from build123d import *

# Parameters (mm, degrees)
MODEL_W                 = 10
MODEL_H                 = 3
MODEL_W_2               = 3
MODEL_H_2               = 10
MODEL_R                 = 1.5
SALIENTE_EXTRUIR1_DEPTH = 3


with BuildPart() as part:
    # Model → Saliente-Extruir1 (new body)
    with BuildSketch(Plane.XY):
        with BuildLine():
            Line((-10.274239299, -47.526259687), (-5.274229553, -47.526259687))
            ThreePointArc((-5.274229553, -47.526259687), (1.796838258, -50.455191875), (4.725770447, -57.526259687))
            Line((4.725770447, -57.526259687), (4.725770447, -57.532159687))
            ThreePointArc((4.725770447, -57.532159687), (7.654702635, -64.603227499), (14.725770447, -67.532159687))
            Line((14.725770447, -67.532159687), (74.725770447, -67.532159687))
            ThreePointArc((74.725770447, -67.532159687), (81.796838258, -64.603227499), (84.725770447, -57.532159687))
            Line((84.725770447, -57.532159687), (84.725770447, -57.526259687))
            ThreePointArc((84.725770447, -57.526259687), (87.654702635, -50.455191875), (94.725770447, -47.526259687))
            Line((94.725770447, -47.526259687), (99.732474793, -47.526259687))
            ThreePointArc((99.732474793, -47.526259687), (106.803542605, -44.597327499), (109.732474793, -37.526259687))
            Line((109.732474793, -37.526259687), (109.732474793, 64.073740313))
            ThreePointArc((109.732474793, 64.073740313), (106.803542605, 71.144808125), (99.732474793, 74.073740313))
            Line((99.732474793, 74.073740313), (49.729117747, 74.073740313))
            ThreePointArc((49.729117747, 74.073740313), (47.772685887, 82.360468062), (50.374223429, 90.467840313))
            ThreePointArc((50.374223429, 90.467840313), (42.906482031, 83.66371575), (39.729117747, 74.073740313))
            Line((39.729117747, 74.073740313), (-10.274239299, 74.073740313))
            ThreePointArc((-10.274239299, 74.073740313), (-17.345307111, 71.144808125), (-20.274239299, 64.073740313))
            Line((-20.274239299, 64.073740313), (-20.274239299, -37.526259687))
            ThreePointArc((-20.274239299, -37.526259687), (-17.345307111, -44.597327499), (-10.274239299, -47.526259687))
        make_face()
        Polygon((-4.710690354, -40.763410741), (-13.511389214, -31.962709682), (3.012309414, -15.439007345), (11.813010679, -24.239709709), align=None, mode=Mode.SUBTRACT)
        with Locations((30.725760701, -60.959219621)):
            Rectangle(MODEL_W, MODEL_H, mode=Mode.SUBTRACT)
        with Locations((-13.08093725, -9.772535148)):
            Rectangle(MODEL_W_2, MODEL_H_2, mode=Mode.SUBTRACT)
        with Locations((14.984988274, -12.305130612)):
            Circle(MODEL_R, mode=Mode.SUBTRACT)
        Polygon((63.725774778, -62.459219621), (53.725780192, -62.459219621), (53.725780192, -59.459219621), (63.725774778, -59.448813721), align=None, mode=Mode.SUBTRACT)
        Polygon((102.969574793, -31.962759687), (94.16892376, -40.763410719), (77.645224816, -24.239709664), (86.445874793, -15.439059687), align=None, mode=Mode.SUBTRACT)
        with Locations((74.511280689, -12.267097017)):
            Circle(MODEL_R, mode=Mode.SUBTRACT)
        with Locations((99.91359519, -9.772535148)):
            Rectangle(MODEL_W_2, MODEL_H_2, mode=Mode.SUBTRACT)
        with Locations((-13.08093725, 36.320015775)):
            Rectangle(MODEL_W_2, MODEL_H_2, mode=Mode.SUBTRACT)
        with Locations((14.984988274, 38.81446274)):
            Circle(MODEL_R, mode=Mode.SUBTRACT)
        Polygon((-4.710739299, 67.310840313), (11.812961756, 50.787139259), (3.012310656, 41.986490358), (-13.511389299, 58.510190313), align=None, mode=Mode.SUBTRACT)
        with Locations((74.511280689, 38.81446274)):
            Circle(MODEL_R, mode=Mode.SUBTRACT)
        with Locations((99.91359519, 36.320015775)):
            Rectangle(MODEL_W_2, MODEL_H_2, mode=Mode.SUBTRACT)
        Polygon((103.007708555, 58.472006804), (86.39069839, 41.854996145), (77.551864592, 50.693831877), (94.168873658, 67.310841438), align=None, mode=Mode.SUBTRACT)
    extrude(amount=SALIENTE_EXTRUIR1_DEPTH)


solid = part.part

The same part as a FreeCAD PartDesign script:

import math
import FreeCAD as App
import Part
import Sketcher

V = App.Vector


def add_polygon(sketch, points):
    """Adds a closed chain of lines whose ends are joined by coincident constraints."""
    first, n = sketch.GeometryCount, len(points)
    for a, b in zip(points, points[1:] + points[:1]):
        sketch.addGeometry(Part.LineSegment(App.Vector(*a, 0), App.Vector(*b, 0)), False)
    for i in range(n):
        sketch.addConstraint(Sketcher.Constraint("Coincident", first + i, 2, first + (i + 1) % n, 1))

doc = App.newDocument("Part")
body = doc.addObject("PartDesign::Body", "Body")

# Sketch on XY plane
sketch1 = body.newObject("Sketcher::SketchObject", "Sketch")
sketch1.AttachmentSupport = (doc.getObject("XY_Plane"), [""])
sketch1.MapMode = "FlatFace"
sketch1.addGeometry(Part.LineSegment(V(-10.274, -47.526, 0), V(-5.274, -47.526, 0)), False)  # 0
sketch1.addGeometry(Part.ArcOfCircle(Part.Circle(V(-5.274, -57.526, 0), V(0, 0, 1), 10), math.radians(0), math.radians(90)), False)  # 1
sketch1.addGeometry(Part.LineSegment(V(4.726, -57.526, 0), V(4.726, -57.532, 0)), False)  # 2
sketch1.addGeometry(Part.ArcOfCircle(Part.Circle(V(14.726, -57.532, 0), V(0, 0, 1), 10), math.radians(180), math.radians(270)), False)  # 3
sketch1.addGeometry(Part.LineSegment(V(14.726, -67.532, 0), V(74.726, -67.532, 0)), False)  # 4
sketch1.addGeometry(Part.ArcOfCircle(Part.Circle(V(74.726, -57.532, 0), V(0, 0, 1), 10), math.radians(-90), math.radians(0)), False)  # 5
sketch1.addGeometry(Part.LineSegment(V(84.726, -57.532, 0), V(84.726, -57.526, 0)), False)  # 6
sketch1.addGeometry(Part.ArcOfCircle(Part.Circle(V(94.726, -57.526, 0), V(0, 0, 1), 10), math.radians(90), math.radians(180)), False)  # 7
sketch1.addGeometry(Part.LineSegment(V(94.726, -47.526, 0), V(99.732, -47.526, 0)), False)  # 8
sketch1.addGeometry(Part.ArcOfCircle(Part.Circle(V(99.732, -37.526, 0), V(0, 0, 1), 10), math.radians(-90), math.radians(0)), False)  # 9
sketch1.addGeometry(Part.LineSegment(V(109.732, -37.526, 0), V(109.732, 64.074, 0)), False)  # 10
sketch1.addGeometry(Part.ArcOfCircle(Part.Circle(V(99.732, 64.074, 0), V(0, 0, 1), 10), math.radians(0), math.radians(90)), False)  # 11
sketch1.addGeometry(Part.LineSegment(V(99.732, 74.074, 0), V(49.729, 74.074, 0)), False)  # 12
sketch1.addGeometry(Part.ArcOfCircle(Part.Circle(V(63.654, 81.736, 0), V(0, 0, 1), 15.893), math.radians(147), math.radians(209)), False)  # 13
sketch1.addGeometry(Part.ArcOfCircle(Part.Circle(V(59.64, 72.798, 0), V(0, 0, 1), 19.952), math.radians(118), math.radians(176)), False)  # 14
sketch1.addGeometry(Part.LineSegment(V(39.729, 74.074, 0), V(-10.274, 74.074, 0)), False)  # 15
sketch1.addGeometry(Part.ArcOfCircle(Part.Circle(V(-10.274, 64.074, 0), V(0, 0, 1), 10), math.radians(90), math.radians(180)), False)  # 16
sketch1.addGeometry(Part.LineSegment(V(-20.274, 64.074, 0), V(-20.274, -37.526, 0)), False)  # 17
sketch1.addGeometry(Part.ArcOfCircle(Part.Circle(V(-10.274, -37.526, 0), V(0, 0, 1), 10), math.radians(180), math.radians(270)), False)  # 18
add_polygon(sketch1, [(35.726, -62.459), (25.726, -62.459), (25.726, -59.459), (35.726, -59.459)])  # lines 19-22
add_polygon(sketch1, [(11.813, -24.24), (-4.711, -40.763), (-13.511, -31.963), (3.012, -15.439)])  # lines 23-26
add_polygon(sketch1, [(-11.581, -14.773), (-14.581, -14.773), (-14.581, -4.773), (-11.581, -4.773)])  # lines 27-30
sketch1.addGeometry(Part.Circle(V(14.985, -12.305, 0), V(0, 0, 1), 1.5), False)  # 31
add_polygon(sketch1, [(63.726, -59.449), (63.726, -62.459), (53.726, -62.459), (53.726, -59.459)])  # lines 32-35
add_polygon(sketch1, [(86.446, -15.439), (102.97, -31.963), (94.169, -40.763), (77.645, -24.24)])  # lines 36-39
sketch1.addGeometry(Part.Circle(V(74.511, -12.267, 0), V(0, 0, 1), 1.5), False)  # 40
add_polygon(sketch1, [(101.414, -14.773), (98.414, -14.773), (98.414, -4.773), (101.414, -4.773)])  # lines 41-44
add_polygon(sketch1, [(-11.581, 31.32), (-14.581, 31.32), (-14.581, 41.32), (-11.581, 41.32)])  # lines 45-48
add_polygon(sketch1, [(-13.511, 58.51), (-4.711, 67.311), (11.813, 50.787), (3.012, 41.986)])  # lines 49-52
sketch1.addGeometry(Part.Circle(V(14.985, 38.814, 0), V(0, 0, 1), 1.5), False)  # 53
sketch1.addGeometry(Part.Circle(V(74.511, 38.814, 0), V(0, 0, 1), 1.5), False)  # 54
add_polygon(sketch1, [(101.414, 31.32), (98.414, 31.32), (98.414, 41.32), (101.414, 41.32)])  # lines 55-58
add_polygon(sketch1, [(94.169, 67.311), (103.008, 58.472), (86.391, 41.855), (77.552, 50.694)])  # lines 59-62
sketch1.addConstraint([
    Sketcher.Constraint("Tangent", 0, 2, 1, 2),
    Sketcher.Constraint("Tangent", 1, 1, 2, 1),
    Sketcher.Constraint("Coincident", 2, 2, 3, 1),
    Sketcher.Constraint("Tangent", 3, 2, 4, 1),
    Sketcher.Constraint("Tangent", 4, 2, 5, 1),
    Sketcher.Constraint("Tangent", 5, 2, 6, 1),
    Sketcher.Constraint("Coincident", 6, 2, 7, 2),
    Sketcher.Constraint("Tangent", 7, 1, 8, 1),
    Sketcher.Constraint("Tangent", 8, 2, 9, 1),
    Sketcher.Constraint("Tangent", 9, 2, 10, 1),
    Sketcher.Constraint("Tangent", 10, 2, 11, 1),
    Sketcher.Constraint("Tangent", 11, 2, 12, 1),
    Sketcher.Constraint("Coincident", 12, 2, 13, 2),
    Sketcher.Constraint("Coincident", 13, 1, 14, 1),
    Sketcher.Constraint("Coincident", 14, 2, 15, 1),
    Sketcher.Constraint("Tangent", 15, 2, 16, 1),
    Sketcher.Constraint("Tangent", 16, 2, 17, 1),
    Sketcher.Constraint("Tangent", 17, 2, 18, 1),
    Sketcher.Constraint("Tangent", 18, 2, 0, 1),
    Sketcher.Constraint("Horizontal", 0),
    Sketcher.Constraint("Horizontal", 4),
    Sketcher.Constraint("Horizontal", 8),
    Sketcher.Constraint("Vertical", 10),
    Sketcher.Constraint("Horizontal", 12),
    Sketcher.Constraint("Horizontal", 15),
    Sketcher.Constraint("Vertical", 17),
    Sketcher.Constraint("Horizontal", 19),
    Sketcher.Constraint("Vertical", 20),
    Sketcher.Constraint("Horizontal", 21),
    Sketcher.Constraint("Vertical", 22),
    Sketcher.Constraint("Horizontal", 27),
    Sketcher.Constraint("Vertical", 28),
    Sketcher.Constraint("Horizontal", 29),
    Sketcher.Constraint("Vertical", 30),
    Sketcher.Constraint("Vertical", 32),
    Sketcher.Constraint("Horizontal", 33),
    Sketcher.Constraint("Vertical", 34),
    Sketcher.Constraint("Horizontal", 41),
    Sketcher.Constraint("Vertical", 42),
    Sketcher.Constraint("Horizontal", 43),
    Sketcher.Constraint("Vertical", 44),
    Sketcher.Constraint("Horizontal", 45),
    Sketcher.Constraint("Vertical", 46),
    Sketcher.Constraint("Horizontal", 47),
    Sketcher.Constraint("Vertical", 48),
    Sketcher.Constraint("Horizontal", 55),
    Sketcher.Constraint("Vertical", 56),
    Sketcher.Constraint("Horizontal", 57),
    Sketcher.Constraint("Vertical", 58),
    Sketcher.Constraint("Equal", 1, 3),
    Sketcher.Constraint("Equal", 3, 5),
    Sketcher.Constraint("Equal", 5, 7),
    Sketcher.Constraint("Equal", 7, 9),
    Sketcher.Constraint("Equal", 9, 11),
    Sketcher.Constraint("Equal", 11, 16),
    Sketcher.Constraint("Equal", 16, 18),
    Sketcher.Constraint("Equal", 31, 40),
    Sketcher.Constraint("Equal", 40, 53),
    Sketcher.Constraint("Equal", 53, 54),
    Sketcher.Constraint("Perpendicular", 23, 24),
    Sketcher.Constraint("Perpendicular", 24, 25),
    Sketcher.Constraint("Perpendicular", 25, 26),
    Sketcher.Constraint("Parallel", 26, 36),
    Sketcher.Constraint("Perpendicular", 36, 37),
    Sketcher.Constraint("Perpendicular", 37, 38),
    Sketcher.Constraint("Perpendicular", 38, 39),
    Sketcher.Constraint("Parallel", 39, 49),
    Sketcher.Constraint("Perpendicular", 49, 50),
    Sketcher.Constraint("Perpendicular", 50, 51),
    Sketcher.Constraint("Perpendicular", 51, 52),
    Sketcher.Constraint("Parallel", 52, 59),
    Sketcher.Constraint("Perpendicular", 59, 60),
    Sketcher.Constraint("Perpendicular", 60, 61),
    Sketcher.Constraint("Perpendicular", 61, 62),
    Sketcher.Constraint("Horizontal", 1, 3, 7, 3),
    Sketcher.Constraint("Horizontal", 11, 3, 16, 3),
    Sketcher.Constraint("Horizontal", 53, 3, 54, 3),
    Sketcher.Constraint("Horizontal", 7, 3, 1, 1),
    Sketcher.Constraint("Horizontal", 5, 3, 2, 2),
    Sketcher.Constraint("Horizontal", 2, 2, 5, 2),
    Sketcher.Constraint("Horizontal", 1, 1, 6, 2),
    Sketcher.Constraint("Horizontal", 22, 2, 32, 2),
    Sketcher.Constraint("Horizontal", 21, 2, 34, 2),
    Sketcher.Constraint("Horizontal", 23, 2, 37, 2),
    Sketcher.Constraint("Horizontal", 26, 2, 38, 2),
    Sketcher.Constraint("Horizontal", 30, 2, 41, 2),
    Sketcher.Constraint("Horizontal", 29, 2, 42, 2),
    Sketcher.Constraint("Horizontal", 48, 2, 55, 2),
    Sketcher.Constraint("Horizontal", 47, 2, 56, 2),
    Sketcher.Constraint("Horizontal", 49, 2, 62, 2),
    Sketcher.Constraint("Vertical", 31, 3, 53, 3),
    Sketcher.Constraint("Vertical", 40, 3, 54, 3),
    Sketcher.Constraint("Vertical", 28, 2, 45, 2),
    Sketcher.Constraint("Vertical", 30, 2, 47, 2),
    Sketcher.Constraint("Vertical", 25, 2, 51, 2),
    Sketcher.Constraint("Vertical", 24, 2, 52, 2),
    Sketcher.Constraint("Vertical", 42, 2, 55, 2),
    Sketcher.Constraint("Vertical", 44, 2, 57, 2),
    Sketcher.Constraint("Equal", 12, 15),
    Sketcher.Constraint("Equal", 29, 41),
    Sketcher.Constraint("Equal", 57, 20),
    Sketcher.Constraint("Equal", 21, 28),
    Sketcher.Constraint("Equal", 44, 46),
    Sketcher.Constraint("Equal", 25, 36),
    Sketcher.Constraint("Equal", 39, 49),
    Sketcher.Constraint("Diameter", 31, 3.0),
    Sketcher.Constraint("Radius", 1, 10.0),
    Sketcher.Constraint("DistanceX", 4, 1, 4, 2, 60.0),
    Sketcher.Constraint("DistanceX", 19, 2, 19, 1, 10.0),
    Sketcher.Constraint("DistanceX", 27, 2, 27, 1, 3.0),
    Sketcher.Constraint("Distance", 35, 10.0),
    Sketcher.Constraint("DistanceY", 10, 1, 10, 2, 101.6),
    Sketcher.Constraint("Distance", 59, 12.5),
    Sketcher.Constraint("Distance", 60, 23.500001),
    Sketcher.Constraint("Distance", 37, 12.446),
    Sketcher.Constraint("DistanceY", 2, 2, 2, 1, 0.0059),
    Sketcher.Constraint("Radius", 13, 15.893354),
    Sketcher.Constraint("Radius", 14, 19.951784),
    Sketcher.Constraint("DistanceX", 0, 1, 0, 2, 5.00001),
    Sketcher.Constraint("DistanceX", -1, 1, 60, 2, 86.390698),
    Sketcher.Constraint("Distance", 24, 12.446069),
    Sketcher.Constraint("Distance", 25, 23.368041),
    Sketcher.Constraint("DistanceX", 8, 1, 8, 2, 5.006704),
    Sketcher.Constraint("DistanceX", 12, 2, 12, 1, 50.003357),
    Sketcher.Constraint("DistanceY", 32, 2, 32, 1, 3.010406),
    Sketcher.Constraint("DistanceX", 1, 3, -1, 1, 5.27423),
    Sketcher.Constraint("DistanceY", 1, 3, -1, 1, 57.52626),
    Sketcher.Constraint("DistanceX", -1, 1, 13, 3, 63.653749),
    Sketcher.Constraint("DistanceX", -1, 1, 31, 3, 14.984988),
    Sketcher.Constraint("DistanceY", 31, 3, -1, 1, 12.305131),
    Sketcher.Constraint("DistanceX", -1, 1, 40, 3, 74.511281),
    Sketcher.Constraint("DistanceY", -1, 1, 13, 1, 90.46784),
    Sketcher.Constraint("DistanceX", -1, 1, 19, 2, 25.725761),
    Sketcher.Constraint("DistanceY", 19, 2, -1, 1, 62.45922),
    Sketcher.Constraint("DistanceX", 23, 2, -1, 1, 4.71069),
    Sketcher.Constraint("DistanceY", 23, 2, -1, 1, 40.763411),
    Sketcher.Constraint("DistanceX", -1, 1, 33, 2, 53.72578),
    Sketcher.Constraint("DistanceY", -1, 1, 49, 2, 67.31084),
    Sketcher.Constraint("DistanceY", 40, 3, -1, 1, 12.267097),
    Sketcher.Constraint("DistanceY", -1, 1, 53, 3, 38.814463),
    Sketcher.Constraint("DistanceX", 27, 2, -1, 1, 14.580937),
    Sketcher.Constraint("DistanceY", 27, 2, -1, 1, 14.772535),
    Sketcher.Constraint("DistanceX", -1, 1, 36, 2, 102.969575),
    Sketcher.Constraint("DistanceX", -1, 1, 41, 2, 98.413595),
    Sketcher.Constraint("DistanceY", -1, 1, 45, 2, 31.320016),
])
pad1 = body.newObject("PartDesign::Pad", "Pad")
pad1.Profile = sketch1
pad1.Length = 3

doc.recompute()
